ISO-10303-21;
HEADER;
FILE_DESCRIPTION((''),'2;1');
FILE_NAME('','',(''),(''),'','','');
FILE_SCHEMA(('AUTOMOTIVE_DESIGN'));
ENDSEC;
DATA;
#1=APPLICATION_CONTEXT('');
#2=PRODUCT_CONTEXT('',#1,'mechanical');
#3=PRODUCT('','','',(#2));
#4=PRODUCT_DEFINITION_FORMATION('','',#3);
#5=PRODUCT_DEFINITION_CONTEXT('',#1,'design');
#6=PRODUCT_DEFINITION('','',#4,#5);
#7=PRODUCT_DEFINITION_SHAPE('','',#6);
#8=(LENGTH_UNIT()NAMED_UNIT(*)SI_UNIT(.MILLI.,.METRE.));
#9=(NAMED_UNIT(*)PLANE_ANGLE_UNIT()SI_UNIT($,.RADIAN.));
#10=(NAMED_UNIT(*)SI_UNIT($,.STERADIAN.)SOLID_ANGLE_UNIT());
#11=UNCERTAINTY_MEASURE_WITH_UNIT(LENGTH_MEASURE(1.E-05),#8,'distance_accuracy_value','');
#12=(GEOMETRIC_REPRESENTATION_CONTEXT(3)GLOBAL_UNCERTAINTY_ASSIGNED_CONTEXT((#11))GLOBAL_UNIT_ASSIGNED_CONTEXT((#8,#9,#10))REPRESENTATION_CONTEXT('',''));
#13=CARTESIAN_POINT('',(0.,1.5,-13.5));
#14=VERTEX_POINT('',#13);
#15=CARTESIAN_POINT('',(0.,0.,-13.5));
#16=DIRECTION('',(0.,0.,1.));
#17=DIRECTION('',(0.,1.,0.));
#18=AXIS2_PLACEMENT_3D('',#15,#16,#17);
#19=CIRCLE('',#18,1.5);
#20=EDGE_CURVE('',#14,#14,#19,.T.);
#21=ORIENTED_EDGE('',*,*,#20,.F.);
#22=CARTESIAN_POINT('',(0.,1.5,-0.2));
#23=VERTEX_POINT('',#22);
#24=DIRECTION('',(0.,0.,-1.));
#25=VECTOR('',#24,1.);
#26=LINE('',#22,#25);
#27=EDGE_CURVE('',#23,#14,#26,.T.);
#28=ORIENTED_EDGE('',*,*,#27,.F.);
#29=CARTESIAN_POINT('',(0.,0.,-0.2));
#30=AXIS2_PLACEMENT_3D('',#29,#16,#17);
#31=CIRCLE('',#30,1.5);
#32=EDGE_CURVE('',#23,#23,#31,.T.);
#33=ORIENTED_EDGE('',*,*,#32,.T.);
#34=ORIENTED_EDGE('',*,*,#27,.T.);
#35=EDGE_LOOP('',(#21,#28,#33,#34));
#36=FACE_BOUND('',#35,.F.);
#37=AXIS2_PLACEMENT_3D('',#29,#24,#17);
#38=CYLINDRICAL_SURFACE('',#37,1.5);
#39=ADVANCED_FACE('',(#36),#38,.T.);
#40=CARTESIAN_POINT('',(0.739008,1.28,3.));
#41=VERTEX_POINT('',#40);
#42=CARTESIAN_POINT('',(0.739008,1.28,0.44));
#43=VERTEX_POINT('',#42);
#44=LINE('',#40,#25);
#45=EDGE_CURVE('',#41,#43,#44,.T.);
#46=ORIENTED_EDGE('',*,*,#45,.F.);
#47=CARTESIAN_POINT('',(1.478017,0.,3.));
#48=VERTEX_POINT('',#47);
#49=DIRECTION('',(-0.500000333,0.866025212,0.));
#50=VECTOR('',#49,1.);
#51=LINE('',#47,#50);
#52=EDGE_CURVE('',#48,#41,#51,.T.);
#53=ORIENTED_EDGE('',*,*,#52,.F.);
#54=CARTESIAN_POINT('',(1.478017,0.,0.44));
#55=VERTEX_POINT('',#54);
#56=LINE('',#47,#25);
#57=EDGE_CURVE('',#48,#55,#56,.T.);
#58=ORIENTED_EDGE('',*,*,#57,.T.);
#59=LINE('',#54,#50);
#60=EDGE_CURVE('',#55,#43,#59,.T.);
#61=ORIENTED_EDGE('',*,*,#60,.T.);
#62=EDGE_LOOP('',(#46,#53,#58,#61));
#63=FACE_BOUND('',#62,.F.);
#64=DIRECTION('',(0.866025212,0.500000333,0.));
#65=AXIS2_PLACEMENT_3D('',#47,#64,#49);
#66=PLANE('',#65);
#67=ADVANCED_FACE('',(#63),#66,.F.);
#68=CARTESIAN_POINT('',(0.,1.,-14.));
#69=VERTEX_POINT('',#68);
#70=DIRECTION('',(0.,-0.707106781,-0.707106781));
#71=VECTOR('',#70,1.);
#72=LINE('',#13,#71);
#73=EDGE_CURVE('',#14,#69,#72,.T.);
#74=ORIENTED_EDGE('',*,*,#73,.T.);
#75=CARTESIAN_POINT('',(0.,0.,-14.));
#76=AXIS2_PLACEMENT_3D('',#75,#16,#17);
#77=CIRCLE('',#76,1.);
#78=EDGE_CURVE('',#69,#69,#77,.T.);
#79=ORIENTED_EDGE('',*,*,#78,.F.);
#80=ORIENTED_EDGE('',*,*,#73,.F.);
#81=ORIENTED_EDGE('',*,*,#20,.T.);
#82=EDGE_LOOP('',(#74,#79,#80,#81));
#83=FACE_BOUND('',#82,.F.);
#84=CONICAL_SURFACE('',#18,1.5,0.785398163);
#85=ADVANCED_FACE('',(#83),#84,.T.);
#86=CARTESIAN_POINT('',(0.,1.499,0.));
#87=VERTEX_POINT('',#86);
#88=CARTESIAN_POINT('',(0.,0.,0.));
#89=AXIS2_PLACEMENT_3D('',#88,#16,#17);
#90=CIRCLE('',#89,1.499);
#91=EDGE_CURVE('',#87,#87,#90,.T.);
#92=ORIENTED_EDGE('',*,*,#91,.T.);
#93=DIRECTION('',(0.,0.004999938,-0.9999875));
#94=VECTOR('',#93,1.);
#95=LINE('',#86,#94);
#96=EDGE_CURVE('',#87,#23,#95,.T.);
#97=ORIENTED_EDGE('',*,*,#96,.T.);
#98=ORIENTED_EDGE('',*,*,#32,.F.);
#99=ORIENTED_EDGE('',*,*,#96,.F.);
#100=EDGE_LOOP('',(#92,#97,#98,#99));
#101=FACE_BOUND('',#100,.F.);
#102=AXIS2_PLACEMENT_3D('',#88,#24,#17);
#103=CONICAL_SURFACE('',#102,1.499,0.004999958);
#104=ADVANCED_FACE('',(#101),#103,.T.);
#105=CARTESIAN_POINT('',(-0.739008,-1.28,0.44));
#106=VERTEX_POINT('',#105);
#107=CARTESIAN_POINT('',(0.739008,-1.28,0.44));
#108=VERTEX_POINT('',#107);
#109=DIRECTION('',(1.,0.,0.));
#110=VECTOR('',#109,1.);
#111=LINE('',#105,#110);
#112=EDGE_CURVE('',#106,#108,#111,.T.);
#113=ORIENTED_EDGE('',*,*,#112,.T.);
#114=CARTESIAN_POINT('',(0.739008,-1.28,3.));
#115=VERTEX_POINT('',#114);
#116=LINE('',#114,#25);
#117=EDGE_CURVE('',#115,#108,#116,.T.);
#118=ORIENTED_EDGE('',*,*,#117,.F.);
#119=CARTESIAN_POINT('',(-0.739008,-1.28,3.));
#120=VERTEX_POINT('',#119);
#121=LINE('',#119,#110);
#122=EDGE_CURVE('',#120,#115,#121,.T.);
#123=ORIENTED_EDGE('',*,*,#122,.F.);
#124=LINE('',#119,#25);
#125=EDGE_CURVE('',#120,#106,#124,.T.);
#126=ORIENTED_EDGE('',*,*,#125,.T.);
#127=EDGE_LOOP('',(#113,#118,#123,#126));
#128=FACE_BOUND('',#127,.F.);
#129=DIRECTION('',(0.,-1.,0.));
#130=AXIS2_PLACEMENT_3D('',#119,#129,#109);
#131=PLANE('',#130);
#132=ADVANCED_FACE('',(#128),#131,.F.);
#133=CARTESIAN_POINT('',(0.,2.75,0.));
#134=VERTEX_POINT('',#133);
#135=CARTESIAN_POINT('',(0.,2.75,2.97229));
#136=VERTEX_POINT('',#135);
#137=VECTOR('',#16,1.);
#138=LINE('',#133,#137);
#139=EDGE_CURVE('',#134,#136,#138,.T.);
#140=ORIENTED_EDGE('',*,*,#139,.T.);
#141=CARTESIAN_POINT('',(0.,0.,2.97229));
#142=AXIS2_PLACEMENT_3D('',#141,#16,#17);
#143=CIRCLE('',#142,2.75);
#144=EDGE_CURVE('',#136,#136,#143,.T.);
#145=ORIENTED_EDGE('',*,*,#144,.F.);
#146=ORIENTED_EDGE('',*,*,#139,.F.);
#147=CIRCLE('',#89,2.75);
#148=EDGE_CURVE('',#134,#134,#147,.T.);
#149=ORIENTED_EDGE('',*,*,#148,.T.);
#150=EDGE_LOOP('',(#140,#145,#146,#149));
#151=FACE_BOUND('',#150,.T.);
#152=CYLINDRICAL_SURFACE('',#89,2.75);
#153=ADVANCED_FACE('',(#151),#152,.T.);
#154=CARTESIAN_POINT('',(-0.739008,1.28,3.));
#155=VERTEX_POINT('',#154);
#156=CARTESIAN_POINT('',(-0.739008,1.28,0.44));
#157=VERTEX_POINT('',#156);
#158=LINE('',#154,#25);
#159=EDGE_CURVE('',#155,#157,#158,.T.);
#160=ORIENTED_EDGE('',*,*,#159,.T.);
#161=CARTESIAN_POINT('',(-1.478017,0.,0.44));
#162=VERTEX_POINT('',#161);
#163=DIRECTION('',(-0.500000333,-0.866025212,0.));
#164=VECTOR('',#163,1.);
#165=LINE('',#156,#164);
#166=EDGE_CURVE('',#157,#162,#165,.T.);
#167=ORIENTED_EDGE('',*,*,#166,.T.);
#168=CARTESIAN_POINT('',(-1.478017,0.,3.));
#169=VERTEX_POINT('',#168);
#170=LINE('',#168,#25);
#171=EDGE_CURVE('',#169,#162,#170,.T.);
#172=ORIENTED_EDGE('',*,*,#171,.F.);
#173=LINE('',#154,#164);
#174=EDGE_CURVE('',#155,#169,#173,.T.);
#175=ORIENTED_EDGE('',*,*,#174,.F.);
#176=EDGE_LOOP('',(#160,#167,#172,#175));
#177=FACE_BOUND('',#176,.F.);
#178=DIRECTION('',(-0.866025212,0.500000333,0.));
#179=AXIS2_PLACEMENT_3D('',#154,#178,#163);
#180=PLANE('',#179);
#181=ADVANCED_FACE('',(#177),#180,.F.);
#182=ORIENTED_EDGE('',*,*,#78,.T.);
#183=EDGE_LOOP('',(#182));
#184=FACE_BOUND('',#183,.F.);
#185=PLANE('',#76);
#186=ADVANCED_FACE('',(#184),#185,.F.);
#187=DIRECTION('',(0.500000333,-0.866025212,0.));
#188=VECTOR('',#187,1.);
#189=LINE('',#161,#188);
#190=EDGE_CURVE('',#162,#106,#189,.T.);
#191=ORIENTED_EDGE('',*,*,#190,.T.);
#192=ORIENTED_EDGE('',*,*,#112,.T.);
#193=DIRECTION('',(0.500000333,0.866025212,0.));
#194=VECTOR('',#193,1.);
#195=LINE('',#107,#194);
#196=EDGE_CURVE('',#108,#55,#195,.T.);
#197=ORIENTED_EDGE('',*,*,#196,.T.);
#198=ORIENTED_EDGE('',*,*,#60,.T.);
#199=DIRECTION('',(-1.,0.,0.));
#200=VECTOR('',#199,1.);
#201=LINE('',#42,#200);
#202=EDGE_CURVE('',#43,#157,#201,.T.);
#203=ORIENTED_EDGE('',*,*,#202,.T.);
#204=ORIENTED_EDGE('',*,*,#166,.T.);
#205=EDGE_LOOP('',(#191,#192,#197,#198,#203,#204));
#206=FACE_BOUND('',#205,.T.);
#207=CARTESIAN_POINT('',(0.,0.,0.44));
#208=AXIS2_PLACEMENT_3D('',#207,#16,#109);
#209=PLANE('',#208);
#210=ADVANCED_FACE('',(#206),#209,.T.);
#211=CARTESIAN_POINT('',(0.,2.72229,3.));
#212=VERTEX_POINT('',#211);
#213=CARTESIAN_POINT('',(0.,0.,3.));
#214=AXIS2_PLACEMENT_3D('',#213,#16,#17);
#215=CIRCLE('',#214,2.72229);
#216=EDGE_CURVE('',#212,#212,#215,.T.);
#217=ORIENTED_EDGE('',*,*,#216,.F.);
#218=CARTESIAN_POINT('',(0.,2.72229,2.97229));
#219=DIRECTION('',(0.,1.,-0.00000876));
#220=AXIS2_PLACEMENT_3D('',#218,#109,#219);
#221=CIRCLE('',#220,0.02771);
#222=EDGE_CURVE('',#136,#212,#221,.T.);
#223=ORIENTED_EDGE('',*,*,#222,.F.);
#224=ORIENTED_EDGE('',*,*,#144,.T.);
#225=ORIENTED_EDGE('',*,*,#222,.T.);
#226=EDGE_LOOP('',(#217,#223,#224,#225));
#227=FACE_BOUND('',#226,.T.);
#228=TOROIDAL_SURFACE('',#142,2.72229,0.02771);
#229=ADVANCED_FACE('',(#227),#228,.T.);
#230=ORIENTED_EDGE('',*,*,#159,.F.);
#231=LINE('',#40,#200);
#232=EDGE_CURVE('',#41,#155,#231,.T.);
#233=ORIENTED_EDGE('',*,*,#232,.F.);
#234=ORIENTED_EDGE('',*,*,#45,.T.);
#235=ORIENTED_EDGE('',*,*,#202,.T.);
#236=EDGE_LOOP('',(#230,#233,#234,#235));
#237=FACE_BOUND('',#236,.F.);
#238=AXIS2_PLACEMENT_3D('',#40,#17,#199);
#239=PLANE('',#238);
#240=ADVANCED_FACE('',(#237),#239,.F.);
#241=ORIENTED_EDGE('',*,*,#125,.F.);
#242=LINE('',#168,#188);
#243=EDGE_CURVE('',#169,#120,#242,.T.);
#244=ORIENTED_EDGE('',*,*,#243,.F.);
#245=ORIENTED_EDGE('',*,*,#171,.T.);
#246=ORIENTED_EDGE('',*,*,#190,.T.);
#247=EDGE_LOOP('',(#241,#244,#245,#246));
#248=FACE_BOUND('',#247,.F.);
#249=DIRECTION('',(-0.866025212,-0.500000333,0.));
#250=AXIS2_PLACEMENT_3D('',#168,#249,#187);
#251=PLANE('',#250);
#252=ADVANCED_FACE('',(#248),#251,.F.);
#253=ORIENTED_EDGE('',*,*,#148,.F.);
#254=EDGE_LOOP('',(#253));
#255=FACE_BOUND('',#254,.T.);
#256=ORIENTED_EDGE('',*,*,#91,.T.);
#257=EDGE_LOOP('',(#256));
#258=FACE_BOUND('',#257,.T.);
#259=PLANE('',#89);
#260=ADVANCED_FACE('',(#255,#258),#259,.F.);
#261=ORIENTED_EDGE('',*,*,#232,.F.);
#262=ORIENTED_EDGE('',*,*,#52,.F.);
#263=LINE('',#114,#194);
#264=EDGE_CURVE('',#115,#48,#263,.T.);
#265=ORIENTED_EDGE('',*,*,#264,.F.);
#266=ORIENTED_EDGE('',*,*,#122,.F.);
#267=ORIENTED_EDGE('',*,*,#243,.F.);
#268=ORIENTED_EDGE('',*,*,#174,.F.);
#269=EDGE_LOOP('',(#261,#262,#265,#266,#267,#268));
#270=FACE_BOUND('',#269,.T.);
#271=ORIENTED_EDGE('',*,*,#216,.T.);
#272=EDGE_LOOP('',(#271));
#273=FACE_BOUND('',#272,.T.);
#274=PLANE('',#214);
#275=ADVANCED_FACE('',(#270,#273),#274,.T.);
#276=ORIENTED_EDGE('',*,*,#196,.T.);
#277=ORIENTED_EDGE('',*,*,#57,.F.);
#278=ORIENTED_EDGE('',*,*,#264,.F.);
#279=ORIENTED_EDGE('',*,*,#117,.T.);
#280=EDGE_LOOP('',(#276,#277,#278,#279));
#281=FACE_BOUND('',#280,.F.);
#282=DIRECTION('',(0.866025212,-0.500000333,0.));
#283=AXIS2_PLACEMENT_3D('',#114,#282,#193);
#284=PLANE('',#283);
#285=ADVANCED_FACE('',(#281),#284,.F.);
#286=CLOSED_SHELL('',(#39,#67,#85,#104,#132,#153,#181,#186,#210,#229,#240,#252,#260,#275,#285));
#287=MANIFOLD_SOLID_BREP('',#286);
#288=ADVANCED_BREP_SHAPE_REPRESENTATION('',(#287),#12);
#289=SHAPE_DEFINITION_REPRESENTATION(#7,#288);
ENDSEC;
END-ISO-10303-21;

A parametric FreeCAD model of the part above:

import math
import FreeCAD as App
import Part
import Sketcher

V = App.Vector
Q = App.Units.Quantity


def add_polygon(sketch, points):
    """Adds a closed chain of lines whose ends are joined by coincident constraints."""
    first, n = sketch.GeometryCount, len(points)
    for a, b in zip(points, points[1:] + points[:1]):
        sketch.addGeometry(Part.LineSegment(App.Vector(*a, 0), App.Vector(*b, 0)), False)
    for i in range(n):
        sketch.addConstraint(Sketcher.Constraint("Coincident", first + i, 2, first + (i + 1) % n, 1))

doc = App.newDocument("Part")
body = doc.addObject("PartDesign::Body", "Body")

# Sketch on YZ plane
sketch1 = doc.addObject("Sketcher::SketchObject", "Sketch")
body.addObject(sketch1)
sketch1.AttachmentSupport = (doc.YZ_Plane, [""])
sketch1.MapMode = "FlatFace"
sketch1.addGeometry([
    Part.LineSegment(V(1.499, 0, 0), V(2.75, 0, 0)),  # 0
    Part.LineSegment(V(2.75, 0, 0), V(2.75, 2.97229, 0)),  # 1
    Part.ArcOfCircle(Part.Circle(V(2.72229, 2.97229, 0), V(0, 0, 1), 0.02771), math.radians(-0.000502), math.radians(90.000502)),  # 2
    Part.LineSegment(V(2.72229, 3, 0), V(0, 3, 0)),  # 3
    Part.LineSegment(V(0, 3, 0), V(0, -14, 0)),  # 4
    Part.LineSegment(V(0, -14, 0), V(1, -14, 0)),  # 5
    Part.LineSegment(V(1, -14, 0), V(1.5, -13.5, 0)),  # 6
    Part.LineSegment(V(1.5, -13.5, 0), V(1.5, -0.2, 0)),  # 7
    Part.LineSegment(V(1.5, -0.2, 0), V(1.499, 0, 0)),  # 8
], False)
sketch1.addConstraint([
    Sketcher.Constraint("Coincident", 0, 2, 1, 1),
    Sketcher.Constraint("Coincident", 1, 2, 2, 1),
    Sketcher.Constraint("Coincident", 2, 2, 3, 1),
    Sketcher.Constraint("Coincident", 3, 2, 4, 1),
    Sketcher.Constraint("Coincident", 4, 2, 5, 1),
    Sketcher.Constraint("Coincident", 5, 2, 6, 1),
    Sketcher.Constraint("Coincident", 6, 2, 7, 1),
    Sketcher.Constraint("Coincident", 7, 2, 8, 1),
    Sketcher.Constraint("Coincident", 8, 2, 0, 1),
    Sketcher.Constraint("Horizontal", 0),
    Sketcher.Constraint("Vertical", 1),
    Sketcher.Constraint("Horizontal", 3),
    Sketcher.Constraint("Vertical", 4),
    Sketcher.Constraint("Horizontal", 5),
    Sketcher.Constraint("Vertical", 7),
    Sketcher.Constraint("PointOnObject", 0, 2, -1),
    Sketcher.Constraint("PointOnObject", 3, 2, -2),
    Sketcher.Constraint("Horizontal", 2, 3, 1, 2),
    Sketcher.Constraint("DistanceX", 5, 1, 5, 2, 1.0),
    Sketcher.Constraint("DistanceY", 4, 2, 4, 1, 17.0),
    Sketcher.Constraint("Angle", 6, Q("45 deg")),
    Sketcher.Constraint("DistanceY", 7, 1, 7, 2, 13.3),
    Sketcher.Constraint("DistanceY", -1, 1, 2, 2, 3.0),
    Sketcher.Constraint("DistanceX", -1, 1, 6, 2, 1.5),
    Sketcher.Constraint("DistanceX", 0, 1, 0, 2, 1.251),
    Sketcher.Constraint("DistanceX", -1, 1, 0, 2, 2.75),
    Sketcher.Constraint("Radius", 2, 0.02771),
    Sketcher.Constraint("DistanceX", 3, 2, 3, 1, 2.72229),
])
revolution = doc.addObject("PartDesign::Revolution", "Revolution")
body.addObject(revolution)
revolution.Profile = sketch1
revolution.ReferenceAxis = (sketch1, ["V_Axis"])
revolution.Angle = 360

# Sketch on XY plane
sketch2 = doc.addObject("Sketcher::SketchObject", "Sketch001")
body.addObject(sketch2)
sketch2.AttachmentSupport = (doc.XY_Plane, [""])
sketch2.MapMode = "FlatFace"
sketch2.AttachmentOffset = App.Placement(V(0, 0, 3), App.Rotation())
add_polygon(sketch2, [(1.478017, 0), (0.739008, 1.28), (-0.739008, 1.28), (-1.478017, 0), (-0.739008, -1.28), (0.739008, -1.28)])  # lines 0-5
sketch2.addConstraint([
    Sketcher.Constraint("Horizontal", 1),
    Sketcher.Constraint("Horizontal", 4),
    Sketcher.Constraint("Symmetric", 0, 2, 3, 2, -1, 1),
    Sketcher.Constraint("Symmetric", 2, 2, 5, 2, -1, 1),
    Sketcher.Constraint("PointOnObject", 2, 2, -1),
    Sketcher.Constraint("Parallel", 2, 5),
    Sketcher.Constraint("Vertical", 1, 2, 3, 2),
    Sketcher.Constraint("DistanceY", -1, 1, 0, 2, 1.28),
    Sketcher.Constraint("DistanceX", 1, 2, 1, 1, 1.478016),
    Sketcher.Constraint("DistanceX", 2, 2, 1, 2, 0.739009),
])
pocket1 = doc.addObject("PartDesign::Pocket", "Pocket")
body.addObject(pocket1)
pocket1.Profile = sketch2
pocket1.Length = 2.56

doc.recompute()
